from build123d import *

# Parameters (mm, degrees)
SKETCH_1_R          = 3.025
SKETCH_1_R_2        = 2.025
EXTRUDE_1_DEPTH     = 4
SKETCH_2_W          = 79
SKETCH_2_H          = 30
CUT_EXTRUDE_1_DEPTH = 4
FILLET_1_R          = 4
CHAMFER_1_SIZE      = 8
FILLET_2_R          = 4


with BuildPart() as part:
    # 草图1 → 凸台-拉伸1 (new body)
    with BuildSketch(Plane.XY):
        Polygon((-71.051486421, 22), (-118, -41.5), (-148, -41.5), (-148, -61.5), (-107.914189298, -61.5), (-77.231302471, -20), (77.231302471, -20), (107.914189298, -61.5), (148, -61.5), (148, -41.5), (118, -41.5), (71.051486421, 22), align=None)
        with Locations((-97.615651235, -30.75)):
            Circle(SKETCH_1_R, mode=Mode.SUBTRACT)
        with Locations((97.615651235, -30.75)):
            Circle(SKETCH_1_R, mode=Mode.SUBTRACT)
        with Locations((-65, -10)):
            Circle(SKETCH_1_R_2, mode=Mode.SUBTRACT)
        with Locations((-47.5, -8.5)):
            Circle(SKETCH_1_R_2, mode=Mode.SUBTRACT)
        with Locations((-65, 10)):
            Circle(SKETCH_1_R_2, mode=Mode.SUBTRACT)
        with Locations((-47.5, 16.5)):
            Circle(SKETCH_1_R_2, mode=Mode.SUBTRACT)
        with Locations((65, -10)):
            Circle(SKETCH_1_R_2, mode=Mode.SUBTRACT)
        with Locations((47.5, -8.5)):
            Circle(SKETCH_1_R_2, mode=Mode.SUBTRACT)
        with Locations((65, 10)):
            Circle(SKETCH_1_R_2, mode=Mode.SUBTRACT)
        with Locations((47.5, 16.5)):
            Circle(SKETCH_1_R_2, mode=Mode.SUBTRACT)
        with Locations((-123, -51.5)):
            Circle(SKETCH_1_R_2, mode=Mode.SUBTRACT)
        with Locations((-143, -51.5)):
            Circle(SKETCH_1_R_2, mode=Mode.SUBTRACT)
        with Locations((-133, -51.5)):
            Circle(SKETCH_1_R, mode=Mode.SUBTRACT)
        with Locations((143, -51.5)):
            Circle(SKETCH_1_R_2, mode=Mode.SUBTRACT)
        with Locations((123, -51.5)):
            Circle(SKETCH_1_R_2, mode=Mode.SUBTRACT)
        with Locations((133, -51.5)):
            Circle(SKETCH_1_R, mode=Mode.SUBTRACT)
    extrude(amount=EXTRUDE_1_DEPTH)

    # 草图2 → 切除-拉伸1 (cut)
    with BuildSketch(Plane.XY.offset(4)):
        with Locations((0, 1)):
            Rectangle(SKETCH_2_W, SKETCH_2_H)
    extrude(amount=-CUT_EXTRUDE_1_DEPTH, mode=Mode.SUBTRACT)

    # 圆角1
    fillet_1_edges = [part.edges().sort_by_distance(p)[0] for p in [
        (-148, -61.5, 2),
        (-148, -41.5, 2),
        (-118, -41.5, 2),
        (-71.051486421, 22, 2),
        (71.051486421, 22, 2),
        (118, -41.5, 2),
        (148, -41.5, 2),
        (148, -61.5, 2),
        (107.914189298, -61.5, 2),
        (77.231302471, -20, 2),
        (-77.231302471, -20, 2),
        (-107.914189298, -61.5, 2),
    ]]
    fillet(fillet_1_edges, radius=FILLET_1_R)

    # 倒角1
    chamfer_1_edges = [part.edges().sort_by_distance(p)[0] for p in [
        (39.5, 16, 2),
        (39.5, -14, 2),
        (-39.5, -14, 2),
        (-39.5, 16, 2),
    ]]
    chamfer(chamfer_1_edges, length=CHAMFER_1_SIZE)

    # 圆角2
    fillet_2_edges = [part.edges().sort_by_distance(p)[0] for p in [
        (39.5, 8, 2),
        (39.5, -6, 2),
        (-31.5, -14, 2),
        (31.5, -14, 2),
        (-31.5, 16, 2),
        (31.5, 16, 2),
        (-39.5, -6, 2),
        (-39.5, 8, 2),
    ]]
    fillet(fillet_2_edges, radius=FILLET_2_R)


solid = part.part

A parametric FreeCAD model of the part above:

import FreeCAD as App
import Part
import Sketcher

V = App.Vector


def edges_at(feature, points):
    """Names of the edges that pass closest to the given points."""
    edges = feature.Shape.Edges
    near = lambda p: min(range(len(edges)), key=lambda i: edges[i].distToShape(Part.Vertex(*p))[0])
    return sorted({f"Edge{near(p) + 1}" for p in points})

doc = App.newDocument("Part")
body = doc.addObject("PartDesign::Body", "Body")

# Sketch on XY plane
sketch1 = body.newObject("Sketcher::SketchObject", "Sketch")
sketch1.AttachmentSupport = (doc.getObject("XY_Plane"), [""])
sketch1.MapMode = "FlatFace"
sketch1.addGeometry([
    Part.LineSegment(V(-71.1, 22, 0), V(-118, -41.5, 0)),  # 0
    Part.LineSegment(V(-118, -41.5, 0), V(-148, -41.5, 0)),  # 1
    Part.LineSegment(V(-148, -41.5, 0), V(-148, -61.5, 0)),  # 2
    Part.LineSegment(V(-148, -61.5, 0), V(-107.9, -61.5, 0)),  # 3
    Part.LineSegment(V(-107.9, -61.5, 0), V(-77.2, -20, 0)),  # 4
    Part.LineSegment(V(-77.2, -20, 0), V(77.2, -20, 0)),  # 5
    Part.LineSegment(V(77.2, -20, 0), V(107.9, -61.5, 0)),  # 6
    Part.LineSegment(V(107.9, -61.5, 0), V(148, -61.5, 0)),  # 7
    Part.LineSegment(V(148, -61.5, 0), V(148, -41.5, 0)),  # 8
    Part.LineSegment(V(148, -41.5, 0), V(118, -41.5, 0)),  # 9
    Part.LineSegment(V(118, -41.5, 0), V(71.1, 22, 0)),  # 10
    Part.LineSegment(V(71.1, 22, 0), V(-71.1, 22, 0)),  # 11
    Part.Circle(V(-143, -51.5, 0), V(0, 0, 1), 2),  # 12
    Part.Circle(V(-133, -51.5, 0), V(0, 0, 1), 3),  # 13
    Part.Circle(V(-123, -51.5, 0), V(0, 0, 1), 2),  # 14
    Part.Circle(V(-97.6, -30.8, 0), V(0, 0, 1), 3),  # 15
    Part.Circle(V(123, -51.5, 0), V(0, 0, 1), 2),  # 16
    Part.Circle(V(133, -51.5, 0), V(0, 0, 1), 3),  # 17
    Part.Circle(V(143, -51.5, 0), V(0, 0, 1), 2),  # 18
    Part.Circle(V(97.6, -30.8, 0), V(0, 0, 1), 3),  # 19
    Part.Circle(V(-65, -10, 0), V(0, 0, 1), 2),  # 20
    Part.Circle(V(-47.5, -8.5, 0), V(0, 0, 1), 2),  # 21
    Part.Circle(V(-65, 10, 0), V(0, 0, 1), 2),  # 22
    Part.Circle(V(-47.5, 16.5, 0), V(0, 0, 1), 2),  # 23
    Part.Circle(V(65, -10, 0), V(0, 0, 1), 2),  # 24
    Part.Circle(V(47.5, -8.5, 0), V(0, 0, 1), 2),  # 25
    Part.Circle(V(65, 10, 0), V(0, 0, 1), 2),  # 26
    Part.Circle(V(47.5, 16.5, 0), V(0, 0, 1), 2),  # 27
], False)
sketch1.addConstraint([
    Sketcher.Constraint("Coincident", 0, 2, 1, 1),
    Sketcher.Constraint("Coincident", 1, 2, 2, 1),
    Sketcher.Constraint("Coincident", 2, 2, 3, 1),
    Sketcher.Constraint("Coincident", 3, 2, 4, 1),
    Sketcher.Constraint("Coincident", 4, 2, 5, 1),
    Sketcher.Constraint("Coincident", 5, 2, 6, 1),
    Sketcher.Constraint("Coincident", 6, 2, 7, 1),
    Sketcher.Constraint("Coincident", 7, 2, 8, 1),
    Sketcher.Constraint("Coincident", 8, 2, 9, 1),
    Sketcher.Constraint("Coincident", 9, 2, 10, 1),
    Sketcher.Constraint("Coincident", 10, 2, 11, 1),
    Sketcher.Constraint("Coincident", 11, 2, 0, 1),
    Sketcher.Constraint("Horizontal", 1),
    Sketcher.Constraint("Vertical", 2),
    Sketcher.Constraint("Horizontal", 3),
    Sketcher.Constraint("Horizontal", 5),
    Sketcher.Constraint("Horizontal", 7),
    Sketcher.Constraint("Vertical", 8),
    Sketcher.Constraint("Horizontal", 9),
    Sketcher.Constraint("Horizontal", 11),
    Sketcher.Constraint("Equal", 12, 14),
    Sketcher.Constraint("Equal", 13, 15),
    Sketcher.Constraint("Equal", 14, 16),
    Sketcher.Constraint("Equal", 15, 17),
    Sketcher.Constraint("Equal", 16, 18),
    Sketcher.Constraint("Equal", 17, 19),
    Sketcher.Constraint("Equal", 18, 20),
    Sketcher.Constraint("Equal", 20, 21),
    Sketcher.Constraint("Equal", 21, 22),
    Sketcher.Constraint("Equal", 22, 23),
    Sketcher.Constraint("Equal", 23, 24),
    Sketcher.Constraint("Equal", 24, 25),
    Sketcher.Constraint("Equal", 25, 26),
    Sketcher.Constraint("Equal", 26, 27),
    Sketcher.Constraint("Symmetric", 22, 3, 24, 3, -1, 1),
    Sketcher.Constraint("Symmetric", 20, 3, 26, 3, -1, 1),
    Sketcher.Constraint("Symmetric", 14, 3, 16, 3, -2),
    Sketcher.Constraint("Symmetric", 13, 3, 17, 3, -2),
    Sketcher.Constraint("Symmetric", 12, 3, 18, 3, -2),
    Sketcher.Constraint("Symmetric", 15, 3, 19, 3, -2),
    Sketcher.Constraint("Symmetric", 20, 3, 24, 3, -2),
    Sketcher.Constraint("Symmetric", 21, 3, 25, 3, -2),
    Sketcher.Constraint("Symmetric", 23, 3, 27, 3, -2),
    Sketcher.Constraint("Symmetric", 3, 2, 6, 2, -2),
    Sketcher.Constraint("Symmetric", 1, 2, 8, 2, -2),
    Sketcher.Constraint("Parallel", 0, 4),
    Sketcher.Constraint("Parallel", 6, 10),
    Sketcher.Constraint("Horizontal", 12, 3, 13, 3),
    Sketcher.Constraint("Horizontal", 13, 3, 14, 3),
    Sketcher.Constraint("Vertical", 21, 3, 23, 3),
    Sketcher.Constraint("Equal", 1, 9),
    Sketcher.Constraint("Equal", 4, 6),
    Sketcher.Constraint("Diameter", 12, 4.05),
    Sketcher.Constraint("Diameter", 13, 6.05),
    Sketcher.Constraint("DistanceX", 1, 2, 1, 1, 30.0),
    Sketcher.Constraint("DistanceY", 2, 2, 2, 1, 20.0),
    Sketcher.Constraint("DistanceX", 12, 3, -1, 1, 143.0),
    Sketcher.Constraint("DistanceX", 13, 3, -1, 1, 133.0),
    Sketcher.Constraint("DistanceX", 14, 3, -1, 1, 123.0),
    Sketcher.Constraint("DistanceX", 20, 3, -1, 1, 65.0),
    Sketcher.Constraint("DistanceY", 20, 3, -1, 1, 10.0),
    Sketcher.Constraint("DistanceX", 0, 2, -1, 1, 118.0),
    Sketcher.Constraint("DistanceY", 4, 2, -1, 1, 20.0),
    Sketcher.Constraint("DistanceY", -1, 1, 10, 2, 22.0),
    Sketcher.Constraint("DistanceY", 14, 3, 21, 3, 43.0),
    Sketcher.Constraint("DistanceY", 21, 3, 23, 3, 25.0),
    Sketcher.Constraint("DistanceX", 21, 3, 25, 3, 95.0),
    Sketcher.Constraint("DistanceY", 14, 3, 0, 2, 10.0),
    Sketcher.Constraint("DistanceY", 12, 3, -1, 1, 51.5),
    Sketcher.Constraint("DistanceY", 15, 3, -1, 1, 30.75),
    Sketcher.Constraint("DistanceX", 3, 1, 3, 2, 40.085811),
    Sketcher.Constraint("DistanceX", 5, 1, 5, 2, 154.462605),
    Sketcher.Constraint("DistanceX", 15, 3, -1, 1, 97.615651),
])
pad1 = body.newObject("PartDesign::Pad", "Pad")
pad1.Profile = sketch1
pad1.Length = 4

# Sketch on XY plane
sketch2 = body.newObject("Sketcher::SketchObject", "Sketch001")
sketch2.AttachmentSupport = (doc.getObject("XY_Plane"), [""])
sketch2.MapMode = "FlatFace"
sketch2.AttachmentOffset = App.Placement(V(0, 0, 4), App.Rotation())
sketch2.addGeometry([
    Part.LineSegment(V(-40, 16, 0), V(-40, -14, 0)),
    Part.LineSegment(V(-40, -14, 0), V(40, -14, 0)),
    Part.LineSegment(V(40, -14, 0), V(40, 16, 0)),
    Part.LineSegment(V(40, 16, 0), V(-40, 16, 0)),
], False)
sketch2.addConstraint([
    Sketcher.Constraint("Coincident", 0, 2, 1, 1),
    Sketcher.Constraint("Coincident", 1, 2, 2, 1),
    Sketcher.Constraint("Coincident", 2, 2, 3, 1),
    Sketcher.Constraint("Coincident", 3, 2, 0, 1),
    Sketcher.Constraint("Vertical", 0),
    Sketcher.Constraint("Horizontal", 1),
    Sketcher.Constraint("Vertical", 2),
    Sketcher.Constraint("Horizontal", 3),
    Sketcher.Constraint("DistanceX", 1, 1, 1, 2, 79.0),
    Sketcher.Constraint("DistanceY", 0, 2, 0, 1, 30.0),
    Sketcher.Constraint("DistanceY", 0, 2, -1, 1, 14.0),
    Sketcher.Constraint("DistanceX", 0, 2, -1, 1, 39.5),
])
pocket1 = body.newObject("PartDesign::Pocket", "Pocket")
pocket1.Profile = sketch2
pocket1.Length = 4
doc.recompute()

fillet = body.newObject("PartDesign::Fillet", "Fillet")
fillet.Base = (pocket1, edges_at(pocket1, [
    (-148, -61.5, 2),
    (-148, -41.5, 2),
    (-118, -41.5, 2),
    (-71.051, 22, 2),
    (71.051, 22, 2),
    (118, -41.5, 2),
    (148, -41.5, 2),
    (148, -61.5, 2),
    (107.914, -61.5, 2),
    (77.231, -20, 2),
    (-77.231, -20, 2),
    (-107.914, -61.5, 2),
]))
fillet.Radius = 4
doc.recompute()

chamfer = body.newObject("PartDesign::Chamfer", "Chamfer")
chamfer.Base = (fillet, edges_at(fillet, [
    (39.5, 16, 2),
    (39.5, -14, 2),
    (-39.5, -14, 2),
    (-39.5, 16, 2),
]))
chamfer.Size = 8
doc.recompute()

fillet2 = body.newObject("PartDesign::Fillet", "Fillet001")
fillet2.Base = (chamfer, edges_at(chamfer, [
    (39.5, 8, 2),
    (39.5, -6, 2),
    (-31.5, -14, 2),
    (31.5, -14, 2),
    (-31.5, 16, 2),
    (31.5, 16, 2),
    (-39.5, -6, 2),
    (-39.5, 8, 2),
]))
fillet2.Radius = 4

doc.recompute()
